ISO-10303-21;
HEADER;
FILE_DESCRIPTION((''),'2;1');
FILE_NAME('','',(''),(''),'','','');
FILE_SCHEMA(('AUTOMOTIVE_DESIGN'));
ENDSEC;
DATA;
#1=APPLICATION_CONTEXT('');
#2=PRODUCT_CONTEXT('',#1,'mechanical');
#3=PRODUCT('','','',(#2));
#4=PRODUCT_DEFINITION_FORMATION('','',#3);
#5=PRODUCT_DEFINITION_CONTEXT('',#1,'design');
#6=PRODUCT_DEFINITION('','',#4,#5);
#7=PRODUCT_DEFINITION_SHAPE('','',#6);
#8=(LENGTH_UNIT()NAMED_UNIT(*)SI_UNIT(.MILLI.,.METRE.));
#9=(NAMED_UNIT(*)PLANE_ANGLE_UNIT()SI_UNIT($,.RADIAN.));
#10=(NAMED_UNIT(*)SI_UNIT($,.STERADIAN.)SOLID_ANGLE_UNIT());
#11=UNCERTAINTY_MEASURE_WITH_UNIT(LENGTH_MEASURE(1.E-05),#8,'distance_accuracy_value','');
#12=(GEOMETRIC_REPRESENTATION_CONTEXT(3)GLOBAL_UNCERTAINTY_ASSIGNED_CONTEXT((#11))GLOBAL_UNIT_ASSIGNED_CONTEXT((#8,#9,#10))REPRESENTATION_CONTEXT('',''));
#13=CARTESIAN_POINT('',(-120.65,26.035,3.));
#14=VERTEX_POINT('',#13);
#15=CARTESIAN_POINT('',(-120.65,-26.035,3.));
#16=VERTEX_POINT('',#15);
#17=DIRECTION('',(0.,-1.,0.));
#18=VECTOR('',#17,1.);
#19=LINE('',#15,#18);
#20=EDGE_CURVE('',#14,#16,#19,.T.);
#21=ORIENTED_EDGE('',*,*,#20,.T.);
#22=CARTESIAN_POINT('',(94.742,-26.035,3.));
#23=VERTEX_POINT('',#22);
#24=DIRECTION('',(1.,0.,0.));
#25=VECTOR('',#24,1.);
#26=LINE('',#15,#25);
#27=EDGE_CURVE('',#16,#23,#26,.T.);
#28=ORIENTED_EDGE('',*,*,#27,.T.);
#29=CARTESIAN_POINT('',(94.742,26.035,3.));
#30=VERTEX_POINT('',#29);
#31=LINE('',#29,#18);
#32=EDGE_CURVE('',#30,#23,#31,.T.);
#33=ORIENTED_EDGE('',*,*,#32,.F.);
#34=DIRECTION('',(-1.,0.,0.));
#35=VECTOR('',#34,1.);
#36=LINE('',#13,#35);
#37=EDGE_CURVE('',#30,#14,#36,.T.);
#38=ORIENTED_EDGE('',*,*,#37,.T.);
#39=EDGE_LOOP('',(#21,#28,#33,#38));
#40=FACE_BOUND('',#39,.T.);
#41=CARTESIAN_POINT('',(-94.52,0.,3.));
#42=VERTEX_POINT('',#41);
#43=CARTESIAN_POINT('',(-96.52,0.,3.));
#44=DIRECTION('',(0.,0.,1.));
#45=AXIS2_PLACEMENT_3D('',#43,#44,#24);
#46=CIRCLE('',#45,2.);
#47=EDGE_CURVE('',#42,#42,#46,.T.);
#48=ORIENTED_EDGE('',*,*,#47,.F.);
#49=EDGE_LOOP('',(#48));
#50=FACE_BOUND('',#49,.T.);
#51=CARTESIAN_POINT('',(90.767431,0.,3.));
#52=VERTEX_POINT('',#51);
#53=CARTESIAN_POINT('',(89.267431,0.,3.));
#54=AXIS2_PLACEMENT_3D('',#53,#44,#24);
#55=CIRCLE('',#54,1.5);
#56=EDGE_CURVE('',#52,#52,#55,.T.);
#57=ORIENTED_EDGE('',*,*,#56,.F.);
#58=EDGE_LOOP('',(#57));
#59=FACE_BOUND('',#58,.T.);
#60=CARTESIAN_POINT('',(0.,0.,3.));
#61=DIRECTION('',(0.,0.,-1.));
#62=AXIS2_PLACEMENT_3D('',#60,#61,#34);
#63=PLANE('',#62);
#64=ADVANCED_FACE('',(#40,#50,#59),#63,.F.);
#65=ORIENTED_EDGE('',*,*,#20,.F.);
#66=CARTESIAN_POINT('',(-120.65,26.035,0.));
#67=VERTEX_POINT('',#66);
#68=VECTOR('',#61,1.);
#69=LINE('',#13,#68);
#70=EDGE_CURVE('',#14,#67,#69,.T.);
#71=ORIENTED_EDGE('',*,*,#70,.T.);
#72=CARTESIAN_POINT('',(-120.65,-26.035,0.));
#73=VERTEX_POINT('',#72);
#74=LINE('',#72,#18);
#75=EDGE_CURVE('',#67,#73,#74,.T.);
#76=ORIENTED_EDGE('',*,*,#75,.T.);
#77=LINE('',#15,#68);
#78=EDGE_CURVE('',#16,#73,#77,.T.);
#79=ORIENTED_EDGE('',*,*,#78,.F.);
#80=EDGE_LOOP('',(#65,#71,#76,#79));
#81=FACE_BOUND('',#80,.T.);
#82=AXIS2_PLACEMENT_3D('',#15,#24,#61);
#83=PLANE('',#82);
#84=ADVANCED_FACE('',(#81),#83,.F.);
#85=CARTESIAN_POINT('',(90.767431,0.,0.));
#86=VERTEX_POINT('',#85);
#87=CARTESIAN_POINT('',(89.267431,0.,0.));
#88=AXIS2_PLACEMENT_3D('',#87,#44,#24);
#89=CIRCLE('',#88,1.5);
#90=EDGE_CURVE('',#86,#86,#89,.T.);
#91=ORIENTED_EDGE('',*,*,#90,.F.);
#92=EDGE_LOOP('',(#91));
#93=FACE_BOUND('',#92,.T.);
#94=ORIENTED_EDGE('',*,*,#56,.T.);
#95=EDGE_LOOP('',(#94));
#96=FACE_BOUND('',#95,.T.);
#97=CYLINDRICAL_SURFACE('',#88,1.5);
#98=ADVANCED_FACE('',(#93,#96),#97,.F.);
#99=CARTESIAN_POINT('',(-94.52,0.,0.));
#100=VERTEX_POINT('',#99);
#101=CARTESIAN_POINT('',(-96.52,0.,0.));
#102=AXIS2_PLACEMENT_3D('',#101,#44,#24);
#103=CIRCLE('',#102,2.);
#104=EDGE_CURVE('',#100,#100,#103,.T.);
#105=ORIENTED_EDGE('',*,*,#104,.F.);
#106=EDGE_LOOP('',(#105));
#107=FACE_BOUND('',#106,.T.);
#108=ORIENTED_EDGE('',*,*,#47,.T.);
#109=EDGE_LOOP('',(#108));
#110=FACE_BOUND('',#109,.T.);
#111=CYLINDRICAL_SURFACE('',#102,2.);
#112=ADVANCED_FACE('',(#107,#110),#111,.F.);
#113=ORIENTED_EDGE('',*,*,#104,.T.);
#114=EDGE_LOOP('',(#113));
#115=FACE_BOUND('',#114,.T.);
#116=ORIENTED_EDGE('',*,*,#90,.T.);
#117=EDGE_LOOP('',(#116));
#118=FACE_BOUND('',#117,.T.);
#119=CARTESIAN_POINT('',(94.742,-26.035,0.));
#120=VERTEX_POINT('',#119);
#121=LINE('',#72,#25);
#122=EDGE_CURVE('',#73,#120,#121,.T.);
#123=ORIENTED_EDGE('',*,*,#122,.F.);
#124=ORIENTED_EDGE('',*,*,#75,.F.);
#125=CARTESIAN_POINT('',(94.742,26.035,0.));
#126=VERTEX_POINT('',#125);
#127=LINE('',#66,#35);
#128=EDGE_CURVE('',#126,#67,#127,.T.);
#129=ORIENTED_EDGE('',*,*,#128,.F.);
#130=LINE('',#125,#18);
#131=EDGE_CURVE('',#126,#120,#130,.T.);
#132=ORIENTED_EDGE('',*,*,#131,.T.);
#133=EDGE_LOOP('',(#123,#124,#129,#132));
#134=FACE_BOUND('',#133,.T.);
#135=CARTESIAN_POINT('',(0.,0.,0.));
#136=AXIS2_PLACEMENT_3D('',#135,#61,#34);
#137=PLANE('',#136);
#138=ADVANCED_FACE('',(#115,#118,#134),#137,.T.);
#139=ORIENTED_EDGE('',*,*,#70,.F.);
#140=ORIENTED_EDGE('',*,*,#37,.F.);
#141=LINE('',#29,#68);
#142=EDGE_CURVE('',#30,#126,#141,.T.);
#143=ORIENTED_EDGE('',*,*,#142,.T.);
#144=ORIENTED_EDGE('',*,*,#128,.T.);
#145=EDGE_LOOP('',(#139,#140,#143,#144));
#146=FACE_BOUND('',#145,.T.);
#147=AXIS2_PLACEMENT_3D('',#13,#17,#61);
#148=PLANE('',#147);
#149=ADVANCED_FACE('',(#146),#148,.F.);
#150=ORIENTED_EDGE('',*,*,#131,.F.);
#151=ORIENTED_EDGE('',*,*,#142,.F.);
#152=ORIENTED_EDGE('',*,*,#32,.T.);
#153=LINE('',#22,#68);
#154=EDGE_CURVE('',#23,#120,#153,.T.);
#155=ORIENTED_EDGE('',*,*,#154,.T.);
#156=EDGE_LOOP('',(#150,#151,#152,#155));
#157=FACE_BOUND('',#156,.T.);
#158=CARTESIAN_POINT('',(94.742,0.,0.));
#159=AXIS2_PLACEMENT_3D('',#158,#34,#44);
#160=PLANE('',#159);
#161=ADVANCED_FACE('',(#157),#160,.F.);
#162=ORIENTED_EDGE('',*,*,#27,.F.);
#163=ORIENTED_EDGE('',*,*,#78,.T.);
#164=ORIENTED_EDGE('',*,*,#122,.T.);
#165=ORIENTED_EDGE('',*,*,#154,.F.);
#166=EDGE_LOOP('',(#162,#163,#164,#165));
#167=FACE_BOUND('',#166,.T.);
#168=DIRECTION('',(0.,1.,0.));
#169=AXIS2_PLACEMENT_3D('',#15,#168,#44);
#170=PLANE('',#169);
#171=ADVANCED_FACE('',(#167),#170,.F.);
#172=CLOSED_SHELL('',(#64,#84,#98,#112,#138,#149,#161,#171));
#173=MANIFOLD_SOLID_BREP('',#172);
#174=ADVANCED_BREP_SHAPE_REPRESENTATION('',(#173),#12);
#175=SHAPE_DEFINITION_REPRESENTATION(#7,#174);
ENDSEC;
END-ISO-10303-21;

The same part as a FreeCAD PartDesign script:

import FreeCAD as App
import Part
import Sketcher
Q = App.Units.Quantity

doc = App.newDocument("Part")
body = doc.addObject("PartDesign::Body", "Body")

# Sketch on XY plane
sketch1 = body.newObject("Sketcher::SketchObject", "Sketch")
sketch1.AttachmentSupport = (doc.getObject("XY_Plane"), [""])
sketch1.MapMode = "FlatFace"
sketch1.addGeometry(Part.LineSegment(App.Vector(-121, 26, 0), App.Vector(-121, -26, 0)), False)
sketch1.addGeometry(Part.LineSegment(App.Vector(-121, -26, 0), App.Vector(121, -26, 0)), False)
sketch1.addGeometry(Part.LineSegment(App.Vector(121, -26, 0), App.Vector(121, 26, 0)), False)
sketch1.addGeometry(Part.LineSegment(App.Vector(121, 26, 0), App.Vector(-121, 26, 0)), False)
sketch1.addConstraint(Sketcher.Constraint("Coincident", 0, 2, 1, 1))
sketch1.addConstraint(Sketcher.Constraint("Coincident", 1, 2, 2, 1))
sketch1.addConstraint(Sketcher.Constraint("Coincident", 2, 2, 3, 1))
sketch1.addConstraint(Sketcher.Constraint("Coincident", 3, 2, 0, 1))
sketch1.addConstraint(Sketcher.Constraint("Vertical", 0))
sketch1.addConstraint(Sketcher.Constraint("Horizontal", 1))
sketch1.addConstraint(Sketcher.Constraint("Vertical", 2))
sketch1.addConstraint(Sketcher.Constraint("Horizontal", 3))
sketch1.addConstraint(Sketcher.Constraint("Symmetric", 0, 2, 2, 2, -1, 1))
sketch1.addConstraint(Sketcher.Constraint("DistanceX", 1, 1, 1, 2, Q("9.5 in")))
sketch1.addConstraint(Sketcher.Constraint("DistanceY", 0, 2, 0, 1, Q("2.05 in")))
pad1 = body.newObject("PartDesign::Pad", "Pad")
pad1.Profile = sketch1
pad1.Length = 3

# Sketch on XY plane
sketch2 = body.newObject("Sketcher::SketchObject", "Sketch001")
sketch2.AttachmentSupport = (doc.getObject("XY_Plane"), [""])
sketch2.MapMode = "FlatFace"
sketch2.AttachmentOffset = App.Placement(App.Vector(0, 0, 3), App.Rotation())
sketch2.addGeometry(Part.Circle(App.Vector(113.3, 0, 0), App.Vector(0, 0, 1), 2), False)
sketch2.addGeometry(Part.Circle(App.Vector(-96.5, 0, 0), App.Vector(0, 0, 1), 2), False)
sketch2.addConstraint(Sketcher.Constraint("Equal", 0, 1))
sketch2.addConstraint(Sketcher.Constraint("PointOnObject", 0, 3, -1))
sketch2.addConstraint(Sketcher.Constraint("PointOnObject", 1, 3, -1))
sketch2.addConstraint(Sketcher.Constraint("DistanceX", 1, 3, -1, 1, Q("3.8 in")))
sketch2.addConstraint(Sketcher.Constraint("Diameter", 0, Q("4 mm")))
sketch2.addConstraint(Sketcher.Constraint("DistanceX", -1, 1, 0, 3, Q("113.339407 mm")))
pocket1 = body.newObject("PartDesign::Pocket", "Pocket")
pocket1.Profile = sketch2
pocket1.Type = "ThroughAll"

# Sketch on XY plane
sketch3 = body.newObject("Sketcher::SketchObject", "Sketch002")
sketch3.AttachmentSupport = (doc.getObject("XY_Plane"), [""])
sketch3.MapMode = "FlatFace"
sketch3.AttachmentOffset = App.Placement(App.Vector(0, 0, 3), App.Rotation())
sketch3.addGeometry(Part.Circle(App.Vector(89.3, 0, 0), App.Vector(0, 0, 1), 1.5), False)
sketch3.addConstraint(Sketcher.Constraint("PointOnObject", 0, 3, -1))
sketch3.addConstraint(Sketcher.Constraint("Diameter", 0, Q("3 mm")))
sketch3.addConstraint(Sketcher.Constraint("DistanceX", -1, 1, 0, 3, Q("89.267431 mm")))
pocket2 = body.newObject("PartDesign::Pocket", "Pocket001")
pocket2.Profile = sketch3
pocket2.Type = "ThroughAll"

# Sketch on YZ plane
sketch4 = body.newObject("Sketcher::SketchObject", "Sketch003")
sketch4.AttachmentSupport = (doc.getObject("YZ_Plane"), [""])
sketch4.MapMode = "FlatFace"
sketch4.AttachmentOffset = App.Placement(App.Vector(0, 0, 4.75 * 25.4), App.Rotation())
sketch4.addGeometry(Part.LineSegment(App.Vector(26, 3, 0), App.Vector(-26, 3, 0)), False)
sketch4.addGeometry(Part.LineSegment(App.Vector(-26, 3, 0), App.Vector(-26, 0, 0)), False)
sketch4.addGeometry(Part.LineSegment(App.Vector(-26, 0, 0), App.Vector(26, 0, 0)), False)
sketch4.addGeometry(Part.LineSegment(App.Vector(26, 0, 0), App.Vector(26, 3, 0)), False)
sketch4.addConstraint(Sketcher.Constraint("Coincident", 0, 2, 1, 1))
sketch4.addConstraint(Sketcher.Constraint("Coincident", 1, 2, 2, 1))
sketch4.addConstraint(Sketcher.Constraint("Coincident", 2, 2, 3, 1))
sketch4.addConstraint(Sketcher.Constraint("Coincident", 3, 2, 0, 1))
sketch4.addConstraint(Sketcher.Constraint("Horizontal", 0))
sketch4.addConstraint(Sketcher.Constraint("Vertical", 1))
sketch4.addConstraint(Sketcher.Constraint("Horizontal", 2))
sketch4.addConstraint(Sketcher.Constraint("Vertical", 3))
sketch4.addConstraint(Sketcher.Constraint("Symmetric", 1, 2, 2, 2, -1, 1))
sketch4.addConstraint(Sketcher.Constraint("DistanceX", 0, 2, 0, 1, Q("2.05 in")))
sketch4.addConstraint(Sketcher.Constraint("DistanceY", 1, 2, 1, 1, Q("3 mm")))
pocket3 = body.newObject("PartDesign::Pocket", "Pocket002")
pocket3.Profile = sketch4
pocket3.Length = Q("1.02 in")

doc.recompute()
